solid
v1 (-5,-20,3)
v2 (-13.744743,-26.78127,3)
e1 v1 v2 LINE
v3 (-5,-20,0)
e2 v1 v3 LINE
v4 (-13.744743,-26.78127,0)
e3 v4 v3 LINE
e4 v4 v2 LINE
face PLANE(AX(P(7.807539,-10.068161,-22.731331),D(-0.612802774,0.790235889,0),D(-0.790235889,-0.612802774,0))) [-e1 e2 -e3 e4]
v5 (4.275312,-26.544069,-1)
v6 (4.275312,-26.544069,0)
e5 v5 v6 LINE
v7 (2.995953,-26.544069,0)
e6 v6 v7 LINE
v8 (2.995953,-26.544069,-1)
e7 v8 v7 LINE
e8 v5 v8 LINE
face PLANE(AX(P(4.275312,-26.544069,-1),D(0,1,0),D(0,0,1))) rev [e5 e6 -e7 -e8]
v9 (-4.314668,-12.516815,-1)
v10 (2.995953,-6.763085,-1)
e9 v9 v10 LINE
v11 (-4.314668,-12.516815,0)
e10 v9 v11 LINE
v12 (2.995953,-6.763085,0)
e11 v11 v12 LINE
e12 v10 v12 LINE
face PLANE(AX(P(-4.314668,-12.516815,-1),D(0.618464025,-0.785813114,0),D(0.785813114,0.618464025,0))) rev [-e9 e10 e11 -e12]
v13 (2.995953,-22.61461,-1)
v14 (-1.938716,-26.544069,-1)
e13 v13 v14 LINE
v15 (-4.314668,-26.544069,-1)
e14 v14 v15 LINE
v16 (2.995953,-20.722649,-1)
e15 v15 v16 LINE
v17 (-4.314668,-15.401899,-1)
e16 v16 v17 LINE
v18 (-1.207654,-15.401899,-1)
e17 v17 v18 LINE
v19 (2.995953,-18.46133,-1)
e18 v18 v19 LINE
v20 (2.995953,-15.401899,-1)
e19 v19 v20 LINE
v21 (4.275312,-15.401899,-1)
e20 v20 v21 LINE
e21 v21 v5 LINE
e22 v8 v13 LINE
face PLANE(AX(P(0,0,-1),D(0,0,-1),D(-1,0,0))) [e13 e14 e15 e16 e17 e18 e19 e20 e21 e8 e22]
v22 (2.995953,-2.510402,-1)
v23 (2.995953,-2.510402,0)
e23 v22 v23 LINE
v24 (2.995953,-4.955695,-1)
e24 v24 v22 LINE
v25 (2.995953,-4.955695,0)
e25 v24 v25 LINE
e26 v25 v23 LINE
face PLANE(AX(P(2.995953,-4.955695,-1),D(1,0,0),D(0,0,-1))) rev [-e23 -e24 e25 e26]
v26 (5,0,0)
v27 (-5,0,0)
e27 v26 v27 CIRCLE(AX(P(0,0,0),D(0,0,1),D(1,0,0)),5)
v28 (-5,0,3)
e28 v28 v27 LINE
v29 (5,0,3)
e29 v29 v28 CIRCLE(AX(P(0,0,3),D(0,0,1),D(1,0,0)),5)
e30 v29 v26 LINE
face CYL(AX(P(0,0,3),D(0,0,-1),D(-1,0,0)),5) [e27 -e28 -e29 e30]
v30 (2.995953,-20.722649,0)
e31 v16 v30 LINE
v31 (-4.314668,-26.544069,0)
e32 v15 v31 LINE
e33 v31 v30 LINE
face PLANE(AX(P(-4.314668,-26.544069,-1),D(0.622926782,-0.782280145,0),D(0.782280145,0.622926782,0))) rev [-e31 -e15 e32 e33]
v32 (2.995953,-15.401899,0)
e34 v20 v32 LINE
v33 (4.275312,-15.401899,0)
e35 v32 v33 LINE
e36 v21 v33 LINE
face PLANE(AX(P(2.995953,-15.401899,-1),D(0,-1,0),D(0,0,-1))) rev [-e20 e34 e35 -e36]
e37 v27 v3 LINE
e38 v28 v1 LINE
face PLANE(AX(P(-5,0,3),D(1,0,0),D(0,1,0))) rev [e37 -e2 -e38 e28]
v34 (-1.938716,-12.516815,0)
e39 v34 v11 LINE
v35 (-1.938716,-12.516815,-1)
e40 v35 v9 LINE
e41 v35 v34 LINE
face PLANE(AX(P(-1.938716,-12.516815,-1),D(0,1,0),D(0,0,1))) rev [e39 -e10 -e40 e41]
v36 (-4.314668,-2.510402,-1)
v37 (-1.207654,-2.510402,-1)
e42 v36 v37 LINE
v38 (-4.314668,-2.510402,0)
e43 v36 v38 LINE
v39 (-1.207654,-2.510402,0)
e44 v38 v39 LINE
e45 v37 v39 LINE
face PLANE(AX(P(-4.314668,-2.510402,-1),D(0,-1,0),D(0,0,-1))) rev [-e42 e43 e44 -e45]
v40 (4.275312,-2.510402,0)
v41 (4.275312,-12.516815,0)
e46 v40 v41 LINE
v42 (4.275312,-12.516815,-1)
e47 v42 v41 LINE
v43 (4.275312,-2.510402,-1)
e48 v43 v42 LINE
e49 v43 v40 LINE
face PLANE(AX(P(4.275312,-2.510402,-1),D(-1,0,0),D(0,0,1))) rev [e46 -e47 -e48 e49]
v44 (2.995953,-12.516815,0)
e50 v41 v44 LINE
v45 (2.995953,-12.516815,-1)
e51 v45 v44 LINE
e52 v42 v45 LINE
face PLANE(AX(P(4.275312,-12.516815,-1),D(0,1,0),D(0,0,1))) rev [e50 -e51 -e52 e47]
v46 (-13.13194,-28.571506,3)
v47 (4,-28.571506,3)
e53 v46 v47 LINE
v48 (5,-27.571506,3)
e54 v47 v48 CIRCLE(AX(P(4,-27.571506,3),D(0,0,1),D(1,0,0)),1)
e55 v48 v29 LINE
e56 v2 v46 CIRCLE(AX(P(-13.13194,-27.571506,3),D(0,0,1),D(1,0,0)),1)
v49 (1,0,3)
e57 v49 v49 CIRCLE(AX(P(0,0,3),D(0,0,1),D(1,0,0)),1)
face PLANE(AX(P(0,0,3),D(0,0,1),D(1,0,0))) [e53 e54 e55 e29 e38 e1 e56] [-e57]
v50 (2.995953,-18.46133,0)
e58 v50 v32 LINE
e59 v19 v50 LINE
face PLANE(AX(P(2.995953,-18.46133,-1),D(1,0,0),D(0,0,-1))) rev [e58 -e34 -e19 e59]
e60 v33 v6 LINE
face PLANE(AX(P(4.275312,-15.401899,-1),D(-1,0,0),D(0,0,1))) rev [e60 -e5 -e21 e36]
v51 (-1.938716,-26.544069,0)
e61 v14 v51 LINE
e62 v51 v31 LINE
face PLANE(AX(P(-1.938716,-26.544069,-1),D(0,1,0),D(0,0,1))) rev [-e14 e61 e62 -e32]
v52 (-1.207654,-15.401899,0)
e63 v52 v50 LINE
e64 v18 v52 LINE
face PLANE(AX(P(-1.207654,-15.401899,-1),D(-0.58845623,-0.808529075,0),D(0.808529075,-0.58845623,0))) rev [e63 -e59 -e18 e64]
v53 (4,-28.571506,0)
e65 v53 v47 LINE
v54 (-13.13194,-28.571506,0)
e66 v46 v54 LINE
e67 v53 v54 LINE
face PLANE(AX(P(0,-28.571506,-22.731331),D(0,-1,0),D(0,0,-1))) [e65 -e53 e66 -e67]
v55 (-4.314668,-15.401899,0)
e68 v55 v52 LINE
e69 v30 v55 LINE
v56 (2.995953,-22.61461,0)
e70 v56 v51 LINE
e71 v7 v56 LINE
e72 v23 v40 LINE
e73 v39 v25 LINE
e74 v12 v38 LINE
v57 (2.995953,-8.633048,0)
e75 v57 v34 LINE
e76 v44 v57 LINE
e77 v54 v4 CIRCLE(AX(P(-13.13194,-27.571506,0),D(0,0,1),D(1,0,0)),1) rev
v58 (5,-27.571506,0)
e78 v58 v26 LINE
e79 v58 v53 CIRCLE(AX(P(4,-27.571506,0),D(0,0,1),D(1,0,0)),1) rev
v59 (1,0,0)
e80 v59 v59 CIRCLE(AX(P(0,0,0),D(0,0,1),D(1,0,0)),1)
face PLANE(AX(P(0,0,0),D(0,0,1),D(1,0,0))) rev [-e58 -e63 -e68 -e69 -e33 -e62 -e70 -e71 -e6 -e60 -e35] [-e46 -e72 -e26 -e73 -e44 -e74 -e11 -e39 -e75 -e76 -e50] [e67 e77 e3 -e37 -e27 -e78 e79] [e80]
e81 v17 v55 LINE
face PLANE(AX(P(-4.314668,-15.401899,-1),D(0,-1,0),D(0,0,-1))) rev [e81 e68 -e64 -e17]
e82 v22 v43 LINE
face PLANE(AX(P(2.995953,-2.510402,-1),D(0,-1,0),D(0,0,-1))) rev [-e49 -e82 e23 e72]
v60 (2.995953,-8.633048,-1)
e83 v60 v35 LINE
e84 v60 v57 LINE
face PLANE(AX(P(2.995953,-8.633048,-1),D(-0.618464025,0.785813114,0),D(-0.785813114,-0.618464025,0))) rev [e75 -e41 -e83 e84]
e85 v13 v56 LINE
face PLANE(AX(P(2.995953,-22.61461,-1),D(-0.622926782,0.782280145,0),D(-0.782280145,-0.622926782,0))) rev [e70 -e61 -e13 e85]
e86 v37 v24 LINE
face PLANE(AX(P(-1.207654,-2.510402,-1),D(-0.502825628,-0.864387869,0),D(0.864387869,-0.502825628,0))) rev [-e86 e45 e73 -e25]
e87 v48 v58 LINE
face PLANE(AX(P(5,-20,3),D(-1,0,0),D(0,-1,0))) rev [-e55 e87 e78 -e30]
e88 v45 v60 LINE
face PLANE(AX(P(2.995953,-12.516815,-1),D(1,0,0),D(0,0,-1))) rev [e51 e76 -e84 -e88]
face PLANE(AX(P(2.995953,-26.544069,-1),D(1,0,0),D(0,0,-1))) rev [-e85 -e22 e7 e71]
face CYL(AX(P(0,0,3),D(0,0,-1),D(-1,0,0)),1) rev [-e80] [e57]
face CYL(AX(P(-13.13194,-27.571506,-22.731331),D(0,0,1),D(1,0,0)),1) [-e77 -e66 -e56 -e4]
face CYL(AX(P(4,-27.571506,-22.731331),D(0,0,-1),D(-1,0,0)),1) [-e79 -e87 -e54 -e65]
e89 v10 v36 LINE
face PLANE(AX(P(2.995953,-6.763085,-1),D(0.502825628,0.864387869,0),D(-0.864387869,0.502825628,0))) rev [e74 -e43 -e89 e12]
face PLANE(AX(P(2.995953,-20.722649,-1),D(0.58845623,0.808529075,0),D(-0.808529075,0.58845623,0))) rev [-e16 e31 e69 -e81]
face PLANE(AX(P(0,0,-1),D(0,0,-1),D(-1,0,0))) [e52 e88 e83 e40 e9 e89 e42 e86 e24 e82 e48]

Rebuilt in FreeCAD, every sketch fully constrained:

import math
import FreeCAD as App
import Part
import Sketcher
from FreeCAD import Vector
Q = App.Units.Quantity


def edges_at(feature, points):
    """Names of the edges that pass closest to the given points."""
    edges = feature.Shape.Edges
    near = lambda p: min(range(len(edges)), key=lambda i: edges[i].distToShape(Part.Vertex(*p))[0])
    return sorted({f"Edge{near(p) + 1}" for p in points})


def add_polygon(sketch, points):
    """Adds a closed chain of lines whose ends are joined by coincident constraints."""
    first, n = sketch.GeometryCount, len(points)
    for a, b in zip(points, points[1:] + points[:1]):
        sketch.addGeometry(Part.LineSegment(App.Vector(*a, 0), App.Vector(*b, 0)), False)
    for i in range(n):
        sketch.addConstraint(Sketcher.Constraint("Coincident", first + i, 2, first + (i + 1) % n, 1))

doc = App.newDocument("Part")
body = doc.addObject("PartDesign::Body", "Body")

# Sketch on XY plane
sketch1 = doc.addObject("Sketcher::SketchObject", "Sketch")
body.addObject(sketch1)
sketch1.AttachmentSupport = (doc.XY_Plane, [""])
sketch1.MapMode = "FlatFace"
sketch1.addGeometry([
    Part.LineSegment(Vector(-5, 0, 0), Vector(-5, -20, 0)),  # 0
    Part.LineSegment(Vector(-5, -20, 0), Vector(5, -20, 0)),  # 1
    Part.LineSegment(Vector(5, -20, 0), Vector(5, 0, 0)),  # 2
    Part.ArcOfCircle(Part.Circle(Vector(0, 0, 0), Vector(0, 0, 1), 5), math.radians(0), math.radians(180)),  # 3
    Part.Circle(Vector(0, 0, 0), Vector(0, 0, 1), 1),  # 4
], False)
sketch1.addConstraint([
    Sketcher.Constraint("Coincident", 0, 2, 1, 1),
    Sketcher.Constraint("Coincident", 1, 2, 2, 1),
    Sketcher.Constraint("Tangent", 2, 2, 3, 1),
    Sketcher.Constraint("Tangent", 3, 2, 0, 1),
    Sketcher.Constraint("Vertical", 0),
    Sketcher.Constraint("Horizontal", 1),
    Sketcher.Constraint("Vertical", 2),
    Sketcher.Constraint("Coincident", 3, 3, -1, 1),
    Sketcher.Constraint("Coincident", 4, 3, -1, 1),
    Sketcher.Constraint("Diameter", 4, Q("2 mm")),
    Sketcher.Constraint("Radius", 3, Q("5 mm")),
    Sketcher.Constraint("DistanceY", 0, 2, 0, 1, Q("20 mm")),
])
pad1 = doc.addObject("PartDesign::Pad", "Pad")
body.addObject(pad1)
pad1.Profile = sketch1
pad1.Length = 3

# Sketch on XY plane
sketch2 = doc.addObject("Sketcher::SketchObject", "Sketch001")
body.addObject(sketch2)
sketch2.AttachmentSupport = (doc.XY_Plane, [""])
sketch2.MapMode = "FlatFace"
sketch2.AttachmentOffset = App.Placement(Vector(0, 0, 3), App.Rotation())
add_polygon(sketch2, [(5, -20), (-5, -20), (-16, -29), (5, -29)])  # lines 0-3
sketch2.addConstraint([
    Sketcher.Constraint("Horizontal", 0),
    Sketcher.Constraint("Horizontal", 2),
    Sketcher.Constraint("Vertical", 3),
    Sketcher.Constraint("DistanceX", 0, 2, 0, 1, Q("10 mm")),
    Sketcher.Constraint("DistanceX", 0, 2, -1, 1, Q("5 mm")),
    Sketcher.Constraint("DistanceY", 0, 2, -1, 1, Q("20 mm")),
    Sketcher.Constraint("DistanceX", 2, 1, 2, 2, Q("21.05333 mm")),
    Sketcher.Constraint("Distance", 1, Q("13.987381 mm")),
])
pad2 = doc.addObject("PartDesign::Pad", "Pad001")
body.addObject(pad2)
pad2.Profile = sketch2
pad2.Length = 3
pad2.Reversed = True
doc.recompute()

fillet = doc.addObject("PartDesign::Fillet", "Fillet")
body.addObject(fillet)
fillet.Base = (pad2, edges_at(pad2, [(-16.053, -28.572, 1.5)]))
fillet.Radius = 1
doc.recompute()

fillet2 = doc.addObject("PartDesign::Fillet", "Fillet001")
body.addObject(fillet2)
fillet2.Base = (fillet, edges_at(fillet, [(5, -28.572, 1.5)]))
fillet2.Radius = 1

# Sketch on XY plane
sketch3 = doc.addObject("Sketcher::SketchObject", "Sketch002")
body.addObject(sketch3)
sketch3.AttachmentSupport = (doc.XY_Plane, [""])
sketch3.MapMode = "FlatFace"
add_polygon(sketch3, [(4.3, -2.5), (4.3, -12.5), (3, -12.5), (3, -8.6), (-1.9, -12.5), (-4.3, -12.5), (3, -6.8), (-4.3, -2.5), (-1.2, -2.5), (3, -5), (3, -2.5)])  # lines 0-10
add_polygon(sketch3, [(4.3, -15.4), (4.3, -26.5), (3, -26.5), (3, -22.6), (-1.9, -26.5), (-4.3, -26.5), (3, -20.7), (-4.3, -15.4), (-1.2, -15.4), (3, -18.5), (3, -15.4)])  # lines 11-21
sketch3.addConstraint([
    Sketcher.Constraint("Vertical", 0),
    Sketcher.Constraint("Horizontal", 1),
    Sketcher.Constraint("Vertical", 2),
    Sketcher.Constraint("Horizontal", 4),
    Sketcher.Constraint("Horizontal", 7),
    Sketcher.Constraint("Vertical", 9),
    Sketcher.Constraint("Horizontal", 10),
    Sketcher.Constraint("Vertical", 11),
    Sketcher.Constraint("Horizontal", 12),
    Sketcher.Constraint("Vertical", 13),
    Sketcher.Constraint("Horizontal", 15),
    Sketcher.Constraint("Horizontal", 18),
    Sketcher.Constraint("Vertical", 20),
    Sketcher.Constraint("Horizontal", 21),
    Sketcher.Constraint("Parallel", 3, 5),
    Sketcher.Constraint("Parallel", 6, 8),
    Sketcher.Constraint("Parallel", 14, 16),
    Sketcher.Constraint("Parallel", 17, 19),
    Sketcher.Constraint("Horizontal", 1, 2, 3, 2),
    Sketcher.Constraint("Horizontal", 7, 2, 9, 2),
    Sketcher.Constraint("Horizontal", 12, 2, 14, 2),
    Sketcher.Constraint("Horizontal", 18, 2, 20, 2),
    Sketcher.Constraint("Vertical", 2, 2, 5, 2),
    Sketcher.Constraint("Vertical", 4, 2, 6, 2),
    Sketcher.Constraint("Vertical", 5, 2, 8, 2),
    Sketcher.Constraint("Vertical", 10, 2, 11, 2),
    Sketcher.Constraint("Vertical", 9, 2, 12, 2),
    Sketcher.Constraint("Vertical", 3, 2, 14, 2),
    Sketcher.Constraint("Vertical", 6, 2, 15, 2),
    Sketcher.Constraint("Vertical", 13, 2, 16, 2),
    Sketcher.Constraint("Vertical", 15, 2, 17, 2),
    Sketcher.Constraint("Vertical", 7, 2, 18, 2),
    Sketcher.Constraint("Vertical", 16, 2, 19, 2),
    Sketcher.Constraint("Distance", 3, Q("6.279698 mm")),
    Sketcher.Constraint("DistanceX", 1, 2, 1, 1, Q("1.279359 mm")),
    Sketcher.Constraint("DistanceX", 4, 2, 4, 1, Q("2.375952 mm")),
    Sketcher.Constraint("DistanceY", 11, 2, 11, 1, Q("11.14217 mm")),
    Sketcher.Constraint("DistanceY", 13, 1, 13, 2, Q("3.929459 mm")),
    Sketcher.Constraint("DistanceY", 20, 1, 20, 2, Q("3.059431 mm")),
    Sketcher.Constraint("DistanceY", 17, 2, -1, 1, Q("15.401899 mm")),
    Sketcher.Constraint("Distance", 6, Q("8.45757 mm")),
    Sketcher.Constraint("Distance", 14, Q("6.308059 mm")),
    Sketcher.Constraint("DistanceY", 11, 2, 2, 2, Q("17.911021 mm")),
    Sketcher.Constraint("DistanceX", -1, 1, 0, 2, Q("4.275312 mm")),
])
pad3 = doc.addObject("PartDesign::Pad", "Pad002")
body.addObject(pad3)
pad3.Profile = sketch3
pad3.Length = 1
pad3.Reversed = True

doc.recompute()
